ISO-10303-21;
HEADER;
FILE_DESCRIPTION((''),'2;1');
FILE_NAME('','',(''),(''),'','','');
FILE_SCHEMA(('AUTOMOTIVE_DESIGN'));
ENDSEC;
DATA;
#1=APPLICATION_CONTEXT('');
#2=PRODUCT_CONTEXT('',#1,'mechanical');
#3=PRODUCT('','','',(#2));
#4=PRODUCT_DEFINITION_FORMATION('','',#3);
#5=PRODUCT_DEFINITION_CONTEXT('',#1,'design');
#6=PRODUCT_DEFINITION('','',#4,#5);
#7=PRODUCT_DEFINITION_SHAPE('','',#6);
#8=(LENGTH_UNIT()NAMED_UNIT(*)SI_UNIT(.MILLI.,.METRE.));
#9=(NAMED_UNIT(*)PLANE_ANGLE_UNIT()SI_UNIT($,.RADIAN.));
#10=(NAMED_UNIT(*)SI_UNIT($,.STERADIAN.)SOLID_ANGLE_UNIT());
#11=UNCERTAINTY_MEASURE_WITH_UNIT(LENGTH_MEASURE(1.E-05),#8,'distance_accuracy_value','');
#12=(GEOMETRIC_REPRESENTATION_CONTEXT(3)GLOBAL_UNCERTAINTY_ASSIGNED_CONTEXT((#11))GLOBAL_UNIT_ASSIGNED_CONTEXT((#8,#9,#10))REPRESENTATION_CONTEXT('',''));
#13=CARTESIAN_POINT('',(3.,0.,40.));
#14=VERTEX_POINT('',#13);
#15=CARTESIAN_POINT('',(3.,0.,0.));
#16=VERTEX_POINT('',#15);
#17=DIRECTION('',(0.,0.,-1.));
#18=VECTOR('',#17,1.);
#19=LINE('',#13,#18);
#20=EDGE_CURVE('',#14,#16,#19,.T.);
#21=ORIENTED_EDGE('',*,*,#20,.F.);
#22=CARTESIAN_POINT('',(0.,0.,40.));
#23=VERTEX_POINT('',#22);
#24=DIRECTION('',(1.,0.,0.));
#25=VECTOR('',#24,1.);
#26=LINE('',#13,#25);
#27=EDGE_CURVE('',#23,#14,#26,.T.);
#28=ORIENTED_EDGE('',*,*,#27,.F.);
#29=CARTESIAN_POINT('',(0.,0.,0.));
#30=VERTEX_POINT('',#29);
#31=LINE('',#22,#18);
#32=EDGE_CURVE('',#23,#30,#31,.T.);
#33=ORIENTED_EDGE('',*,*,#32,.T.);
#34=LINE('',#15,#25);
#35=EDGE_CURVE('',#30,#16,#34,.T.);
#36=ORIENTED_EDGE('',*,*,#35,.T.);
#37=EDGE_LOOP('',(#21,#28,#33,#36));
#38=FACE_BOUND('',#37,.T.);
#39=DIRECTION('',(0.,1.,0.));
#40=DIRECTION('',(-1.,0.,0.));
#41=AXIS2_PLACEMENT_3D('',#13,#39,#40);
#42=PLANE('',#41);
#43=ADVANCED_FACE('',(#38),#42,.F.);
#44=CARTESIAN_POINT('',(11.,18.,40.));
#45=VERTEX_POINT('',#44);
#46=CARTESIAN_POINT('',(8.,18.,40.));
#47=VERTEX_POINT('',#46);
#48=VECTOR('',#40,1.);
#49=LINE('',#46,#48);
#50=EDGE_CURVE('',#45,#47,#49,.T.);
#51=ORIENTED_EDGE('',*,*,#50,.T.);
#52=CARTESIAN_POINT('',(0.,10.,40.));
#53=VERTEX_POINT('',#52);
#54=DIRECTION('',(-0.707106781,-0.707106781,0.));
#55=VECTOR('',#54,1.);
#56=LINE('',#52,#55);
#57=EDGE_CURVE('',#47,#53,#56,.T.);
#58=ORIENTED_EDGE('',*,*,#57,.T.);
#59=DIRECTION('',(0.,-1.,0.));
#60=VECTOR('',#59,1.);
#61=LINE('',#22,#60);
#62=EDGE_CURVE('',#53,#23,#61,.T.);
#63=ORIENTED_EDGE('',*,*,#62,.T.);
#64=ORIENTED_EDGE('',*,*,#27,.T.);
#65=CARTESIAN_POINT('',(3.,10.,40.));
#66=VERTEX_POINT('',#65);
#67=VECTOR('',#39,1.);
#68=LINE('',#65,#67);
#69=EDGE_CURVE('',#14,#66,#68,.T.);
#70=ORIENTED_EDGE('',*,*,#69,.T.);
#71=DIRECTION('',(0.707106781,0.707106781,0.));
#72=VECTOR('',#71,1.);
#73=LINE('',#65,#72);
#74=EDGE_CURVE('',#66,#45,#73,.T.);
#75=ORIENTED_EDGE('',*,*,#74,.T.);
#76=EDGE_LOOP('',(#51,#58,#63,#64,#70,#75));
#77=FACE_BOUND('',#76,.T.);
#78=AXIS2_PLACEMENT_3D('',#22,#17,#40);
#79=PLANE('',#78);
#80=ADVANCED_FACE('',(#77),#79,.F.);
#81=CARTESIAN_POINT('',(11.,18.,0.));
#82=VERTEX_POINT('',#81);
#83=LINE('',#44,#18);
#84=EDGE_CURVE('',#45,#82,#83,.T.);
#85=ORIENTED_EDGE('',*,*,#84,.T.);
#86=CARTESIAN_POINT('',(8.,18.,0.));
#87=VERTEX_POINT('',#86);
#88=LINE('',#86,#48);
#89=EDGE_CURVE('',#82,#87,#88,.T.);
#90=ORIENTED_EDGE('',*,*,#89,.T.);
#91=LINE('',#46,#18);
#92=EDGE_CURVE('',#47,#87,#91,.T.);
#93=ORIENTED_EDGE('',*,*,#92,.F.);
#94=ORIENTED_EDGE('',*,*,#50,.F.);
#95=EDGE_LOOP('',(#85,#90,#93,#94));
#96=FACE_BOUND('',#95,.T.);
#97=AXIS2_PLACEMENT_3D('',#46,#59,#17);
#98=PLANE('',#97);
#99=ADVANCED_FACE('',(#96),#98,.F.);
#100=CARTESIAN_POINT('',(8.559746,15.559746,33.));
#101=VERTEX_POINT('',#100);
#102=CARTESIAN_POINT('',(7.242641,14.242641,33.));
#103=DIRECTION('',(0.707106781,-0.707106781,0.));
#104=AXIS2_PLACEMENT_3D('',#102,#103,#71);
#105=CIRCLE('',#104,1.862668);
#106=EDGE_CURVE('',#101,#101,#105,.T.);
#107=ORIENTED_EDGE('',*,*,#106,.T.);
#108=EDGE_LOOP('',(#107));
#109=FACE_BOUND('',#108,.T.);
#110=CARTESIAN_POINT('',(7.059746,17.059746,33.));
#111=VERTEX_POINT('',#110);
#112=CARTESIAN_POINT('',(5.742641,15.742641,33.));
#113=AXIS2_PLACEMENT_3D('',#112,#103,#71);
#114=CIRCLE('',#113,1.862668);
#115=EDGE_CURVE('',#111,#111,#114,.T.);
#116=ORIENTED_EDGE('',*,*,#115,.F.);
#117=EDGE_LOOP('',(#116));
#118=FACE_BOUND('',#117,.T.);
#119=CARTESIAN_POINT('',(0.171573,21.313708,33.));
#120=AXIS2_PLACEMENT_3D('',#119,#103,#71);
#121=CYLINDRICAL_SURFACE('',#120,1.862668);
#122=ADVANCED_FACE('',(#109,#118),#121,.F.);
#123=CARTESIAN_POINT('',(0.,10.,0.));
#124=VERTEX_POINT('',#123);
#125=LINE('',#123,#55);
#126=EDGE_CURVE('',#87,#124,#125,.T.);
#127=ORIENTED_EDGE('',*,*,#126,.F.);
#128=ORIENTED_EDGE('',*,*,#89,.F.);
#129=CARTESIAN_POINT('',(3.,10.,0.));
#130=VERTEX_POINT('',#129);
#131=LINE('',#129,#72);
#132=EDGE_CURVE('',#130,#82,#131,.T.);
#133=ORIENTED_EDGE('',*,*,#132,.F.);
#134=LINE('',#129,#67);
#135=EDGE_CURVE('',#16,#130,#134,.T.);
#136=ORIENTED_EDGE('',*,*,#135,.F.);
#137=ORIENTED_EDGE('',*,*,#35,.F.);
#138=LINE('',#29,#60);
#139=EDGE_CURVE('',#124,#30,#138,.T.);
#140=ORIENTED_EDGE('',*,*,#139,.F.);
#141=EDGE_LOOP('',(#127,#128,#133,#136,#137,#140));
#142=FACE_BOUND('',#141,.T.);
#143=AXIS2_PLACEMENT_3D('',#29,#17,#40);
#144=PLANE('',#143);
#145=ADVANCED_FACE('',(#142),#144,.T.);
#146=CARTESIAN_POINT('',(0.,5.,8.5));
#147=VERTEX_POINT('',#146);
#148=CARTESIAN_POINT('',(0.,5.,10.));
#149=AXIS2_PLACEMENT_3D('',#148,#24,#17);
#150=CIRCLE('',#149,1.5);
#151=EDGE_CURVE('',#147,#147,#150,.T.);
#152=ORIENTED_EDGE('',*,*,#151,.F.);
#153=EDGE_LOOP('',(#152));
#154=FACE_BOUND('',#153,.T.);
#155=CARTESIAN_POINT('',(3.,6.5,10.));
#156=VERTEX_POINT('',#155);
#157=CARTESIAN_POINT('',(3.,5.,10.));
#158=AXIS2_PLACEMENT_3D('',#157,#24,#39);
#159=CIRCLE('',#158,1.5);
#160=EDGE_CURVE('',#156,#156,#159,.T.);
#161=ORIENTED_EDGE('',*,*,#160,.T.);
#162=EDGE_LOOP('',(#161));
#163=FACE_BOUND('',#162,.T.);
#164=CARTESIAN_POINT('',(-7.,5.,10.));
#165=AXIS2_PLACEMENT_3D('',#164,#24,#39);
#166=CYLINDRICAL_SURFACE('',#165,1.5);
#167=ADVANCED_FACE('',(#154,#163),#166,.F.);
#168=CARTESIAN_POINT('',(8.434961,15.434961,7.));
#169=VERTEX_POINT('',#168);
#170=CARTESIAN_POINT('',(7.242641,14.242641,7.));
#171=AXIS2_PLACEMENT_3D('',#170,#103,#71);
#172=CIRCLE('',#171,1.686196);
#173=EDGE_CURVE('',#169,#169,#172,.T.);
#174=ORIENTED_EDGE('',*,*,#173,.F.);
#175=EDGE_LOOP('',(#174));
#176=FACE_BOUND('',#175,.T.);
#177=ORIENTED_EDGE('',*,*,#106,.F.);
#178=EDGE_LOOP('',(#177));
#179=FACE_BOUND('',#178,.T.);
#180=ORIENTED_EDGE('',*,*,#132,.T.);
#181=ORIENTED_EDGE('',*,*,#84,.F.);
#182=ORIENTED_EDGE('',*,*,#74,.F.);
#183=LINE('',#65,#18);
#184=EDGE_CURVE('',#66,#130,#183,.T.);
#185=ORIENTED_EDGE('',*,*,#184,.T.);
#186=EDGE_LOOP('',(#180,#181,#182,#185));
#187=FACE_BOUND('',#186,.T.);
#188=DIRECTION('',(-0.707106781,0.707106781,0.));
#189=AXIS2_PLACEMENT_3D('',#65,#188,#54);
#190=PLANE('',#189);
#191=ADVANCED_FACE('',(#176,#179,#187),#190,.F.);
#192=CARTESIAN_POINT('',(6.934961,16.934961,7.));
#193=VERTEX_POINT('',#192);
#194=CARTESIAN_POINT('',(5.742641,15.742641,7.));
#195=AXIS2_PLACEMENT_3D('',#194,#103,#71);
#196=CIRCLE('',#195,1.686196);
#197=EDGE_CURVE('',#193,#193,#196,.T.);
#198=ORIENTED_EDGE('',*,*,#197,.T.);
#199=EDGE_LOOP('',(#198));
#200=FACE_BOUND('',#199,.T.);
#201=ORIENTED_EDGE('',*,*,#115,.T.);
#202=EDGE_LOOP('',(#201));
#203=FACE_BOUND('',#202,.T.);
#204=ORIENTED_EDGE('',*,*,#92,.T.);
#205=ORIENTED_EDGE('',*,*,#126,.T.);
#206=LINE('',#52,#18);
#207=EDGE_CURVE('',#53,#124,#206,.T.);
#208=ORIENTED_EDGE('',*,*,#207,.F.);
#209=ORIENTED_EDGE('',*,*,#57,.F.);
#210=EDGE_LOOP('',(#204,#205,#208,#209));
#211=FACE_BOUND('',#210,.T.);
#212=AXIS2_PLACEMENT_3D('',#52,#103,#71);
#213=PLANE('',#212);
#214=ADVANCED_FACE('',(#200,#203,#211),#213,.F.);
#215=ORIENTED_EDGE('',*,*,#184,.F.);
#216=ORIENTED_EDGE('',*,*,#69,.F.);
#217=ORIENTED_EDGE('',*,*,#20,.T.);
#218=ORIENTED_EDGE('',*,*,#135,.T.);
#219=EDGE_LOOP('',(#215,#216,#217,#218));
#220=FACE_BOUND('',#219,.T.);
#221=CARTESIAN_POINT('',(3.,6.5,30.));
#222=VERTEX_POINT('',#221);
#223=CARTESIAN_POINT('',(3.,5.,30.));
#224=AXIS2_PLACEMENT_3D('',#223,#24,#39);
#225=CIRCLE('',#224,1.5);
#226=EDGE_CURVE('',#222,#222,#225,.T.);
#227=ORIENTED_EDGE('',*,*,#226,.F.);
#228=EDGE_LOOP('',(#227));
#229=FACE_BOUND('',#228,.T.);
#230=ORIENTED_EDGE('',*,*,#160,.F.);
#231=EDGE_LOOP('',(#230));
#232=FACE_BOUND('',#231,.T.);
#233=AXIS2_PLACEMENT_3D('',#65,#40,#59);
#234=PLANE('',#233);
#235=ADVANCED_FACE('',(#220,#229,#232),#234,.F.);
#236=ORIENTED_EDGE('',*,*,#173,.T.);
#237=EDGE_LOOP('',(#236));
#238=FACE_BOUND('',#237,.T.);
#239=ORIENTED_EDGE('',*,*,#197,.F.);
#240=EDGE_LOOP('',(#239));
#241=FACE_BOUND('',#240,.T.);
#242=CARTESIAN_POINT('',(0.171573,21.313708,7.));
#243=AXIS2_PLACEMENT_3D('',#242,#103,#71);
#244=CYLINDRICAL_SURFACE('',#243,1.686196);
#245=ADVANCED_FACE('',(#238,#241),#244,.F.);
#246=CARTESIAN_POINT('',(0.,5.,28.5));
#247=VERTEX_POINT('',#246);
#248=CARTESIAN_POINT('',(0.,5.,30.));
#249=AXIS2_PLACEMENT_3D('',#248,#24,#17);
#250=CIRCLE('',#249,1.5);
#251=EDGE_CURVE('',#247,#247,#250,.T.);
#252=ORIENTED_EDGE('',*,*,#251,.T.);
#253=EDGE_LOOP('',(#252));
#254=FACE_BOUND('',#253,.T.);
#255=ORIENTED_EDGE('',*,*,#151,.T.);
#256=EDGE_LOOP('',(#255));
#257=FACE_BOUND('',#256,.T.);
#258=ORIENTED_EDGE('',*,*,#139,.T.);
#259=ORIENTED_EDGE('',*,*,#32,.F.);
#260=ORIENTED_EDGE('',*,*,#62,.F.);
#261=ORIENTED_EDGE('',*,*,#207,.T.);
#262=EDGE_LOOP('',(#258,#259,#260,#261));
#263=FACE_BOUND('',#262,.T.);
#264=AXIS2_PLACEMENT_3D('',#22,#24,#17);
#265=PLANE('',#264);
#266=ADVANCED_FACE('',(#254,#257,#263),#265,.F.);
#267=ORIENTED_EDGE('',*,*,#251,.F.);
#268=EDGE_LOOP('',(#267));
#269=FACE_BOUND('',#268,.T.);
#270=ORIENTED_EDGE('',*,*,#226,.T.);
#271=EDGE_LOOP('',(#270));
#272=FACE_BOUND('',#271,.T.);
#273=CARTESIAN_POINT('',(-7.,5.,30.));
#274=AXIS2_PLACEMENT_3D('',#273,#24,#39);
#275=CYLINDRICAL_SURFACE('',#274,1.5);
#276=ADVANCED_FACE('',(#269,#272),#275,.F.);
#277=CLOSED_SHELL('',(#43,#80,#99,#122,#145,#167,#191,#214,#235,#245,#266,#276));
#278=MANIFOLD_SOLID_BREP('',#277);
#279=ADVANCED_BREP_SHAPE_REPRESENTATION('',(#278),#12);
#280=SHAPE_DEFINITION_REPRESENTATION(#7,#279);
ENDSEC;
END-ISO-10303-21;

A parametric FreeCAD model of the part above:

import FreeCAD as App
import Part
import Sketcher
Q = App.Units.Quantity


def add_polygon(sketch, points):
    """Adds a closed chain of lines whose ends are joined by coincident constraints."""
    first, n = sketch.GeometryCount, len(points)
    for a, b in zip(points, points[1:] + points[:1]):
        sketch.addGeometry(Part.LineSegment(App.Vector(*a, 0), App.Vector(*b, 0)), False)
    for i in range(n):
        sketch.addConstraint(Sketcher.Constraint("Coincident", first + i, 2, first + (i + 1) % n, 1))

doc = App.newDocument("Part")
body = doc.addObject("PartDesign::Body", "Body")

# Sketch on XY plane
sketch1 = body.newObject("Sketcher::SketchObject", "Sketch")
sketch1.AttachmentSupport = (doc.getObject("XY_Plane"), [""])
sketch1.MapMode = "FlatFace"
add_polygon(sketch1, [(0, 10), (0, 0), (3, 0), (3, 10), (11, 18), (8, 18)])  # lines 0-5
sketch1.addConstraint([
    Sketcher.Constraint("Vertical", 0),
    Sketcher.Constraint("Horizontal", 1),
    Sketcher.Constraint("Vertical", 2),
    Sketcher.Constraint("Horizontal", 4),
    Sketcher.Constraint("Coincident", 0, 2, -1, 1),
    Sketcher.Constraint("Parallel", 3, 5),
    Sketcher.Constraint("Horizontal", 2, 2, 5, 2),
    Sketcher.Constraint("DistanceX", 1, 1, 1, 2, Q("3 mm")),
    Sketcher.Constraint("DistanceY", 0, 2, 0, 1, Q("10 mm")),
    Sketcher.Constraint("Angle", 3, Q("45 deg")),
    Sketcher.Constraint("DistanceX", -1, 1, 3, 2, Q("11 mm")),
])
pad1 = body.newObject("PartDesign::Pad", "Pad")
pad1.Profile = sketch1
pad1.Length = 40

# Sketch on YZ plane
sketch2 = body.newObject("Sketcher::SketchObject", "Sketch001")
sketch2.AttachmentSupport = (doc.getObject("YZ_Plane"), [""])
sketch2.MapMode = "FlatFace"
sketch2.AttachmentOffset = App.Placement(App.Vector(0, 0, 3), App.Rotation())
sketch2.addGeometry([
    Part.Circle(App.Vector(5, 10, 0), App.Vector(0, 0, 1), 1.5),
    Part.Circle(App.Vector(5, 30, 0), App.Vector(0, 0, 1), 1.5),
], False)
sketch2.addConstraint([
    Sketcher.Constraint("Equal", 0, 1),
    Sketcher.Constraint("Vertical", 0, 3, 1, 3),
    Sketcher.Constraint("Diameter", 0, Q("3 mm")),
    Sketcher.Constraint("DistanceX", -1, 1, 0, 3, Q("5 mm")),
    Sketcher.Constraint("DistanceY", -1, 1, 0, 3, Q("10 mm")),
    Sketcher.Constraint("DistanceY", -1, 1, 1, 3, Q("30 mm")),
])
pocket1 = body.newObject("PartDesign::Pocket", "Pocket")
pocket1.Profile = sketch2
pocket1.Length = 10

# Sketch on an angled plane
sketch3 = body.newObject("Sketcher::SketchObject", "Sketch002")
sketch3.Placement = App.Placement(App.Vector(-3.5, 3.5, 0), App.Rotation(App.Vector(0, 0, -1), App.Vector(0.707106781, 0.707106781, 0), App.Vector(0.707106781, -0.707106781, 0), "ZXY"))
sketch3.addGeometry([
    Part.Circle(App.Vector(-7, 15.2, 0), App.Vector(0, 0, 1), 1.7),
    Part.Circle(App.Vector(-33, 15.2, 0), App.Vector(0, 0, 1), 1.9),
], False)
sketch3.addConstraint([
    Sketcher.Constraint("Horizontal", 0, 3, 1, 3),
    Sketcher.Constraint("DistanceX", 0, 3, -1, 1, Q("7 mm")),
    Sketcher.Constraint("DistanceX", 1, 3, -1, 1, Q("33 mm")),
    Sketcher.Constraint("Diameter", 0, Q("3.372392 mm")),
    Sketcher.Constraint("Diameter", 1, Q("3.725337 mm")),
    Sketcher.Constraint("DistanceY", -1, 1, 0, 3, Q("15.192388 mm")),
])
pocket2 = body.newObject("PartDesign::Pocket", "Pocket001")
pocket2.Profile = sketch3
pocket2.Length = 10

doc.recompute()
